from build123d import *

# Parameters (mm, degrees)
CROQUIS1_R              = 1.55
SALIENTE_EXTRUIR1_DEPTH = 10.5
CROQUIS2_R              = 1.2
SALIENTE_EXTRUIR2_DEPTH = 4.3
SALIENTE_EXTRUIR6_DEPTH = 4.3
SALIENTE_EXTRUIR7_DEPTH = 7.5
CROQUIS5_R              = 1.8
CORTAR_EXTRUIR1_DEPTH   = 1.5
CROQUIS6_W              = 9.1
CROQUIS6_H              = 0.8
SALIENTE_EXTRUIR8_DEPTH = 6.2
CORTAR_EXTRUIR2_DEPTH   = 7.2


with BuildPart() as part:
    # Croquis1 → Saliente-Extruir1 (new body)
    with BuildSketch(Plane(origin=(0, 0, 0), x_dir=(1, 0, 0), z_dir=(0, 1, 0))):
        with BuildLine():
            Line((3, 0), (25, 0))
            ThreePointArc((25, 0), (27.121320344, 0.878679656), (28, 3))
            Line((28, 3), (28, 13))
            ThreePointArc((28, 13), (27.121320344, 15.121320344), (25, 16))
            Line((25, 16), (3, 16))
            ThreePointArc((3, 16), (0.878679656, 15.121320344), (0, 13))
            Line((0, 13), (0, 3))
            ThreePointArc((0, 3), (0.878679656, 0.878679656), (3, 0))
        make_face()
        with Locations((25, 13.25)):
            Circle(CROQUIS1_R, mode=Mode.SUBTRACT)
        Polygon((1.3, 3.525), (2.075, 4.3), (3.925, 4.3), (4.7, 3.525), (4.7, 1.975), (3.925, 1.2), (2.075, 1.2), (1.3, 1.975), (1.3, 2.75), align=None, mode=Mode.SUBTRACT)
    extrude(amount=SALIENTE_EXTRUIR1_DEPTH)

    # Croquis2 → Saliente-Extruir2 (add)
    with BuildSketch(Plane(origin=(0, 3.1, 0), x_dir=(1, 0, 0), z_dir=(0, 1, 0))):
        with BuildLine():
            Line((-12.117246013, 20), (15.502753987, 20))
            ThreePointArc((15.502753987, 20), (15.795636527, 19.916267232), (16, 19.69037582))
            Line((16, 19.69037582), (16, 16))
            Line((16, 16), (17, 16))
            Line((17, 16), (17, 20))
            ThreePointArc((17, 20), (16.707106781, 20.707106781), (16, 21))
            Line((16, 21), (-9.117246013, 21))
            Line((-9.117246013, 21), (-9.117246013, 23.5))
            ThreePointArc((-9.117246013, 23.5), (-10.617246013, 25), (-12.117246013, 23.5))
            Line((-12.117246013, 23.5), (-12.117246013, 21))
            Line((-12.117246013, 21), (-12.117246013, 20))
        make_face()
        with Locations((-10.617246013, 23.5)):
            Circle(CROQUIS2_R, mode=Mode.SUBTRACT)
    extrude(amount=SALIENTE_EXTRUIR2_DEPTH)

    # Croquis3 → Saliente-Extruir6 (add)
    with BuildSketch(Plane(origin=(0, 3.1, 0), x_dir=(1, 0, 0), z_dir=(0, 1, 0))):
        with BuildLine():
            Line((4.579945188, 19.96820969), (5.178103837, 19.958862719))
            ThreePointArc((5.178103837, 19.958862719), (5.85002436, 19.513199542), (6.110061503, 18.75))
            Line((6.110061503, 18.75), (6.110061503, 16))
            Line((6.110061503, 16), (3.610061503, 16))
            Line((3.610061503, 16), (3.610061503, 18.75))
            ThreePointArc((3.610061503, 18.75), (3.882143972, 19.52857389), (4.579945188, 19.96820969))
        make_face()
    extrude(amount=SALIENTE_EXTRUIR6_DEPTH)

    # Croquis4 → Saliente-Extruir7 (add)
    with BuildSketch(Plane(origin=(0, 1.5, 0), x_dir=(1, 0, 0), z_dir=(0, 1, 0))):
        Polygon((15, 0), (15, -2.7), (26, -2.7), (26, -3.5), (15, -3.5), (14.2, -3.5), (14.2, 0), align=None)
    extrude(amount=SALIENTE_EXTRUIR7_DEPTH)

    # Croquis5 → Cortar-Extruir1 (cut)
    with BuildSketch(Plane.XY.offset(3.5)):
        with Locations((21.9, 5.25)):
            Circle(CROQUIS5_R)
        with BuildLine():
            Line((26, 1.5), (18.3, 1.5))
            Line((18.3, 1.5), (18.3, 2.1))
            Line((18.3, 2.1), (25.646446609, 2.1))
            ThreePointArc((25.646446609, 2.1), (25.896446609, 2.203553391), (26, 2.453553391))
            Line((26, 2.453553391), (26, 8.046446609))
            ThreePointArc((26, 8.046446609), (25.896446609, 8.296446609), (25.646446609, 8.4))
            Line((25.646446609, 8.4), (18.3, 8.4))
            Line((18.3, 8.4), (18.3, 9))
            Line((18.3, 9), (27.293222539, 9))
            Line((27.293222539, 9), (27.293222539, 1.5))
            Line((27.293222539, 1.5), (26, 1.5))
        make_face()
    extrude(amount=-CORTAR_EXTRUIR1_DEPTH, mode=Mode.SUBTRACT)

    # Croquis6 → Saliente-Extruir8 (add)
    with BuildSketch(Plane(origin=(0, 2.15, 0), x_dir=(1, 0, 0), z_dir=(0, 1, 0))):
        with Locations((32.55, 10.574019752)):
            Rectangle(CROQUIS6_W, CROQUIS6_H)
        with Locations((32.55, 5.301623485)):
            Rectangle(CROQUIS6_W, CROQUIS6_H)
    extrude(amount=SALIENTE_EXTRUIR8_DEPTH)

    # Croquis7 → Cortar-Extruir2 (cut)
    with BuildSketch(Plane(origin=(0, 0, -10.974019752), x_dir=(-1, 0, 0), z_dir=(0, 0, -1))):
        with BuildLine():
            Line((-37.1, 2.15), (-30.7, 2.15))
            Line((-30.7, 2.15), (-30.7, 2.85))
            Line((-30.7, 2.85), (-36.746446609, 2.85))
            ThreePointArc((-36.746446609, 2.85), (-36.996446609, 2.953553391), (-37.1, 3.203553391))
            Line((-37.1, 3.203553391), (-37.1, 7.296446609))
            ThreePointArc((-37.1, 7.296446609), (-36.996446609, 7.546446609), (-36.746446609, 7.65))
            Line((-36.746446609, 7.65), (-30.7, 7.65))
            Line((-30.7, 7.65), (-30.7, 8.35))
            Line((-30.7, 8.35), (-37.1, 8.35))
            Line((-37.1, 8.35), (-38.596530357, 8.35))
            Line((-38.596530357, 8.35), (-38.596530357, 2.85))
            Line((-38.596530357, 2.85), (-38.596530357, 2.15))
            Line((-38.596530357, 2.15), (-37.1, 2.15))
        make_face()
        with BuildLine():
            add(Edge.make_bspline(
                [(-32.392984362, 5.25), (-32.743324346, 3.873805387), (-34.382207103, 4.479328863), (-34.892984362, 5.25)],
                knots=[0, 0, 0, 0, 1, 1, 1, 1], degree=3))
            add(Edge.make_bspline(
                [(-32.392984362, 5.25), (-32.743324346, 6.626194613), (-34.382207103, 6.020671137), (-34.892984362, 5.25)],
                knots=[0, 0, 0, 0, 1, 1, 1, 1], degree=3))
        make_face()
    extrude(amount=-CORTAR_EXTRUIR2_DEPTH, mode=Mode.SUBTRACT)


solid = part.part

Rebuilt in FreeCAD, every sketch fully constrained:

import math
import FreeCAD as App
import Part
import Sketcher

V = App.Vector
Q = App.Units.Quantity


def add_polygon(sketch, points):
    """Adds a closed chain of lines whose ends are joined by coincident constraints."""
    first, n = sketch.GeometryCount, len(points)
    for a, b in zip(points, points[1:] + points[:1]):
        sketch.addGeometry(Part.LineSegment(App.Vector(*a, 0), App.Vector(*b, 0)), False)
    for i in range(n):
        sketch.addConstraint(Sketcher.Constraint("Coincident", first + i, 2, first + (i + 1) % n, 1))

doc = App.newDocument("Part")
body = doc.addObject("PartDesign::Body", "Body")

# Sketch on XZ plane
sketch1 = body.newObject("Sketcher::SketchObject", "Sketch")
sketch1.AttachmentSupport = (doc.getObject("XZ_Plane"), [""])
sketch1.MapMode = "FlatFace"
sketch1.addGeometry(Part.LineSegment(V(3, 0, 0), V(25, 0, 0)), False)  # 0
sketch1.addGeometry(Part.ArcOfCircle(Part.Circle(V(25, -3, 0), V(0, 0, 1), 3), math.radians(0), math.radians(90)), False)  # 1
sketch1.addGeometry(Part.LineSegment(V(28, -3, 0), V(28, -13, 0)), False)  # 2
sketch1.addGeometry(Part.ArcOfCircle(Part.Circle(V(25, -13, 0), V(0, 0, 1), 3), math.radians(-90), math.radians(0)), False)  # 3
sketch1.addGeometry(Part.LineSegment(V(25, -16, 0), V(3, -16, 0)), False)  # 4
sketch1.addGeometry(Part.ArcOfCircle(Part.Circle(V(3, -13, 0), V(0, 0, 1), 3), math.radians(180), math.radians(270)), False)  # 5
sketch1.addGeometry(Part.LineSegment(V(0, -13, 0), V(0, -3, 0)), False)  # 6
sketch1.addGeometry(Part.ArcOfCircle(Part.Circle(V(3, -3, 0), V(0, 0, 1), 3), math.radians(90), math.radians(180)), False)  # 7
add_polygon(sketch1, [(1.3, -1.975), (1.3, -3.525), (2.075, -4.3), (3.925, -4.3), (4.7, -3.525), (4.7, -1.975), (3.925, -1.2), (2.075, -1.2)])  # lines 8-15
sketch1.addGeometry(Part.Circle(V(25, -13.25, 0), V(0, 0, 1), 1.55), False)  # 16
sketch1.addConstraint([
    Sketcher.Constraint("Tangent", 0, 2, 1, 2),
    Sketcher.Constraint("Tangent", 1, 1, 2, 1),
    Sketcher.Constraint("Tangent", 2, 2, 3, 2),
    Sketcher.Constraint("Tangent", 3, 1, 4, 1),
    Sketcher.Constraint("Tangent", 4, 2, 5, 2),
    Sketcher.Constraint("Tangent", 5, 1, 6, 1),
    Sketcher.Constraint("Tangent", 6, 2, 7, 2),
    Sketcher.Constraint("Tangent", 7, 1, 0, 1),
    Sketcher.Constraint("Horizontal", 0),
    Sketcher.Constraint("Vertical", 2),
    Sketcher.Constraint("Horizontal", 4),
    Sketcher.Constraint("Vertical", 6),
    Sketcher.Constraint("Vertical", 8),
    Sketcher.Constraint("Horizontal", 10),
    Sketcher.Constraint("Vertical", 12),
    Sketcher.Constraint("Horizontal", 14),
    Sketcher.Constraint("Equal", 1, 3),
    Sketcher.Constraint("Equal", 3, 5),
    Sketcher.Constraint("Equal", 5, 7),
    Sketcher.Constraint("PointOnObject", 0, 2, -1),
    Sketcher.Constraint("PointOnObject", 5, 1, -2),
    Sketcher.Constraint("Perpendicular", 9, 11),
    Sketcher.Constraint("Perpendicular", 11, 13),
    Sketcher.Constraint("Perpendicular", 13, 15),
    Sketcher.Constraint("Horizontal", 8, 2, 11, 2),
    Sketcher.Constraint("Horizontal", 12, 2, 15, 2),
    Sketcher.Constraint("Vertical", 3, 3, 16, 3),
    Sketcher.Constraint("Vertical", 10, 2, 13, 2),
    Sketcher.Constraint("Vertical", 9, 2, 14, 2),
    Sketcher.Constraint("Radius", 1, Q("3 mm")),
    Sketcher.Constraint("Diameter", 16, Q("3.1 mm")),
    Sketcher.Constraint("DistanceX", 0, 1, 0, 2, Q("22 mm")),
    Sketcher.Constraint("DistanceY", 2, 2, 2, 1, Q("10 mm")),
    Sketcher.Constraint("DistanceX", 10, 1, 10, 2, Q("1.85 mm")),
    Sketcher.Constraint("DistanceY", 8, 2, 8, 1, Q("1.55 mm")),
    Sketcher.Constraint("DistanceX", -1, 1, 8, 2, Q("1.3 mm")),
    Sketcher.Constraint("DistanceY", 9, 2, -1, 1, Q("4.3 mm")),
    Sketcher.Constraint("DistanceX", -1, 1, 11, 2, Q("4.7 mm")),
    Sketcher.Constraint("DistanceY", 16, 3, -1, 1, Q("13.25 mm")),
])
pad1 = body.newObject("PartDesign::Pad", "Pad")
pad1.Profile = sketch1
pad1.Length = 10.5
pad1.Reversed = True

# Sketch on XZ plane
sketch2 = body.newObject("Sketcher::SketchObject", "Sketch001")
sketch2.AttachmentSupport = (doc.getObject("XZ_Plane"), [""])
sketch2.MapMode = "FlatFace"
sketch2.AttachmentOffset = App.Placement(V(0, 0, -3.1), App.Rotation())
sketch2.addGeometry([
    Part.LineSegment(V(-12.117246, -20, 0), V(15.502754, -20, 0)),  # 0
    Part.ArcOfCircle(Part.Circle(V(15.502754, -19.445908, 0), V(0, 0, 1), 0.554092), math.radians(-90), math.radians(-26.180769)),  # 1
    Part.LineSegment(V(16, -19.690376, 0), V(16, -16, 0)),  # 2
    Part.LineSegment(V(16, -16, 0), V(17, -16, 0)),  # 3
    Part.LineSegment(V(17, -16, 0), V(17, -20, 0)),  # 4
    Part.ArcOfCircle(Part.Circle(V(16, -20, 0), V(0, 0, 1), 1), math.radians(-90), math.radians(0)),  # 5
    Part.LineSegment(V(16, -21, 0), V(-9.117246, -21, 0)),  # 6
    Part.LineSegment(V(-9.117246, -21, 0), V(-9.117246, -23.5, 0)),  # 7
    Part.ArcOfCircle(Part.Circle(V(-10.617246, -23.5, 0), V(0, 0, 1), 1.5), math.radians(180), math.radians(360)),  # 8
    Part.LineSegment(V(-12.117246, -23.5, 0), V(-12.117246, -20, 0)),  # 9
    Part.Circle(V(-10.617246, -23.5, 0), V(0, 0, 1), 1.2),  # 10
], False)
sketch2.addConstraint([
    Sketcher.Constraint("Tangent", 0, 2, 1, 1),
    Sketcher.Constraint("Coincident", 1, 2, 2, 1),
    Sketcher.Constraint("Coincident", 2, 2, 3, 1),
    Sketcher.Constraint("Coincident", 3, 2, 4, 1),
    Sketcher.Constraint("Tangent", 4, 2, 5, 2),
    Sketcher.Constraint("Tangent", 5, 1, 6, 1),
    Sketcher.Constraint("Coincident", 6, 2, 7, 1),
    Sketcher.Constraint("Tangent", 7, 2, 8, 2),
    Sketcher.Constraint("Tangent", 8, 1, 9, 1),
    Sketcher.Constraint("Coincident", 9, 2, 0, 1),
    Sketcher.Constraint("Horizontal", 0),
    Sketcher.Constraint("Vertical", 2),
    Sketcher.Constraint("Horizontal", 3),
    Sketcher.Constraint("Vertical", 4),
    Sketcher.Constraint("Horizontal", 6),
    Sketcher.Constraint("Vertical", 7),
    Sketcher.Constraint("Vertical", 9),
    Sketcher.Constraint("Coincident", 10, 3, 8, 3),
    Sketcher.Constraint("Horizontal", 5, 3, 0, 2),
    Sketcher.Constraint("Vertical", 5, 3, 1, 2),
    Sketcher.Constraint("Radius", 5, Q("1 mm")),
    Sketcher.Constraint("Diameter", 10, Q("2.4 mm")),
    Sketcher.Constraint("Radius", 8, Q("1.5 mm")),
    Sketcher.Constraint("DistanceY", 4, 2, 4, 1, Q("4 mm")),
    Sketcher.Constraint("DistanceY", 7, 2, 7, 1, Q("2.5 mm")),
    Sketcher.Constraint("DistanceX", -1, 1, 5, 3, Q("16 mm")),
    Sketcher.Constraint("DistanceY", 5, 3, -1, 1, Q("20 mm")),
    Sketcher.Constraint("DistanceX", 0, 1, 0, 2, Q("27.62 mm")),
    Sketcher.Constraint("Radius", 1, Q("0.554092 mm")),
    Sketcher.Constraint("DistanceX", 6, 2, 6, 1, Q("25.117246 mm")),
])
pad2 = body.newObject("PartDesign::Pad", "Pad001")
pad2.Profile = sketch2
pad2.Length = 4.3
pad2.Reversed = True

# Sketch on XZ plane
sketch3 = body.newObject("Sketcher::SketchObject", "Sketch002")
sketch3.AttachmentSupport = (doc.getObject("XZ_Plane"), [""])
sketch3.MapMode = "FlatFace"
sketch3.AttachmentOffset = App.Placement(V(0, 0, -3.1), App.Rotation())
sketch3.addGeometry([
    Part.LineSegment(V(5.178104, -19.958863, 0), V(4.579945, -19.96821, 0)),  # 0
    Part.ArcOfCircle(Part.Circle(V(4.860062, -18.75, 0), V(0, 0, 1), 1.25), math.radians(180), math.radians(257.050448)),  # 1
    Part.LineSegment(V(3.610062, -18.75, 0), V(3.610062, -16, 0)),  # 2
    Part.LineSegment(V(3.610062, -16, 0), V(6.110062, -16, 0)),  # 3
    Part.LineSegment(V(6.110062, -16, 0), V(6.110062, -18.75, 0)),  # 4
    Part.ArcOfCircle(Part.Circle(V(4.860062, -18.75, 0), V(0, 0, 1), 1.25), math.radians(-75.259958), math.radians(0)),  # 5
], False)
sketch3.addConstraint([
    Sketcher.Constraint("Coincident", 0, 2, 1, 2),
    Sketcher.Constraint("Tangent", 1, 1, 2, 1),
    Sketcher.Constraint("Coincident", 2, 2, 3, 1),
    Sketcher.Constraint("Coincident", 3, 2, 4, 1),
    Sketcher.Constraint("Tangent", 4, 2, 5, 2),
    Sketcher.Constraint("Coincident", 5, 1, 0, 1),
    Sketcher.Constraint("Vertical", 2),
    Sketcher.Constraint("Horizontal", 3),
    Sketcher.Constraint("Vertical", 4),
    Sketcher.Constraint("Coincident", 5, 3, 1, 3),
    Sketcher.Constraint("Equal", 1, 5),
    Sketcher.Constraint("Radius", 1, Q("1.25 mm")),
    Sketcher.Constraint("DistanceY", 2, 2, -1, 1, Q("16 mm")),
    Sketcher.Constraint("DistanceY", 2, 1, 2, 2, Q("2.75 mm")),
    Sketcher.Constraint("Distance", 0, Q("0.598232 mm")),
    Sketcher.Constraint("DistanceX", -1, 1, 1, 3, Q("4.860062 mm")),
    Sketcher.Constraint("DistanceY", 0, 2, -1, 1, Q("19.96821 mm")),
])
pad3 = body.newObject("PartDesign::Pad", "Pad002")
pad3.Profile = sketch3
pad3.Length = 4.3
pad3.Reversed = True

# Sketch on XZ plane
sketch4 = body.newObject("Sketcher::SketchObject", "Sketch003")
sketch4.AttachmentSupport = (doc.getObject("XZ_Plane"), [""])
sketch4.MapMode = "FlatFace"
sketch4.AttachmentOffset = App.Placement(V(0, 0, -1.5), App.Rotation())
add_polygon(sketch4, [(15, 2.7), (15, 0), (14.2, 0), (14.2, 3.5), (26, 3.5), (26, 2.7)])  # lines 0-5
sketch4.addConstraint([
    Sketcher.Constraint("Vertical", 0),
    Sketcher.Constraint("Horizontal", 1),
    Sketcher.Constraint("Vertical", 2),
    Sketcher.Constraint("Horizontal", 3),
    Sketcher.Constraint("Vertical", 4),
    Sketcher.Constraint("Horizontal", 5),
    Sketcher.Constraint("PointOnObject", 0, 2, -1),
    Sketcher.Constraint("Equal", 1, 4),
    Sketcher.Constraint("DistanceX", 5, 2, 5, 1, Q("11 mm")),
    Sketcher.Constraint("DistanceX", 1, 2, 1, 1, Q("0.8 mm")),
    Sketcher.Constraint("DistanceY", 0, 2, 0, 1, Q("2.7 mm")),
    Sketcher.Constraint("DistanceX", -1, 1, 0, 2, Q("15 mm")),
])
pad4 = body.newObject("PartDesign::Pad", "Pad003")
pad4.Profile = sketch4
pad4.Length = 7.5
pad4.Reversed = True

# Sketch on XY plane
sketch5 = body.newObject("Sketcher::SketchObject", "Sketch004")
sketch5.AttachmentSupport = (doc.getObject("XY_Plane"), [""])
sketch5.MapMode = "FlatFace"
sketch5.AttachmentOffset = App.Placement(V(0, 0, 3.5), App.Rotation())
sketch5.addGeometry([
    Part.Circle(V(21.9, 5.25, 0), V(0, 0, 1), 1.8),  # 0
    Part.LineSegment(V(18.3, 2.1, 0), V(18.3, 1.5, 0)),  # 1
    Part.LineSegment(V(18.3, 1.5, 0), V(27.293223, 1.5, 0)),  # 2
    Part.LineSegment(V(27.293223, 1.5, 0), V(27.293223, 9, 0)),  # 3
    Part.LineSegment(V(27.293223, 9, 0), V(18.3, 9, 0)),  # 4
    Part.LineSegment(V(18.3, 9, 0), V(18.3, 8.4, 0)),  # 5
    Part.LineSegment(V(18.3, 8.4, 0), V(25.646447, 8.4, 0)),  # 6
    Part.ArcOfCircle(Part.Circle(V(25.646447, 8.046447, 0), V(0, 0, 1), 0.353553), math.radians(0), math.radians(90)),  # 7
    Part.LineSegment(V(26, 8.046447, 0), V(26, 2.453553, 0)),  # 8
    Part.ArcOfCircle(Part.Circle(V(25.646447, 2.453553, 0), V(0, 0, 1), 0.353553), math.radians(-90), math.radians(0)),  # 9
    Part.LineSegment(V(25.646447, 2.1, 0), V(18.3, 2.1, 0)),  # 10
], False)
sketch5.addConstraint([
    Sketcher.Constraint("Coincident", 1, 2, 2, 1),
    Sketcher.Constraint("Coincident", 2, 2, 3, 1),
    Sketcher.Constraint("Coincident", 3, 2, 4, 1),
    Sketcher.Constraint("Coincident", 4, 2, 5, 1),
    Sketcher.Constraint("Coincident", 5, 2, 6, 1),
    Sketcher.Constraint("Tangent", 6, 2, 7, 2),
    Sketcher.Constraint("Tangent", 7, 1, 8, 1),
    Sketcher.Constraint("Tangent", 8, 2, 9, 2),
    Sketcher.Constraint("Tangent", 9, 1, 10, 1),
    Sketcher.Constraint("Coincident", 10, 2, 1, 1),
    Sketcher.Constraint("Vertical", 1),
    Sketcher.Constraint("Horizontal", 2),
    Sketcher.Constraint("Vertical", 3),
    Sketcher.Constraint("Horizontal", 4),
    Sketcher.Constraint("Vertical", 5),
    Sketcher.Constraint("Horizontal", 6),
    Sketcher.Constraint("Vertical", 8),
    Sketcher.Constraint("Horizontal", 10),
    Sketcher.Constraint("Equal", 7, 9),
    Sketcher.Constraint("Vertical", 1, 2, 4, 2),
    Sketcher.Constraint("Equal", 1, 5),
    Sketcher.Constraint("Diameter", 0, Q("3.6 mm")),
    Sketcher.Constraint("DistanceY", 1, 2, 1, 1, Q("0.6 mm")),
    Sketcher.Constraint("DistanceY", 3, 1, 3, 2, Q("7.5 mm")),
    Sketcher.Constraint("DistanceY", -1, 1, 3, 2, Q("9 mm")),
    Sketcher.Constraint("DistanceX", -1, 1, 7, 1, Q("26 mm")),
    Sketcher.Constraint("DistanceX", -1, 1, 0, 3, Q("21.9 mm")),
    Sketcher.Constraint("DistanceX", -1, 1, 1, 2, Q("18.3 mm")),
    Sketcher.Constraint("DistanceY", -1, 1, 0, 3, Q("5.25 mm")),
    Sketcher.Constraint("Radius", 7, Q("0.353553 mm")),
    Sketcher.Constraint("DistanceX", 2, 1, 2, 2, Q("8.993223 mm")),
])
pocket1 = body.newObject("PartDesign::Pocket", "Pocket")
pocket1.Profile = sketch5
pocket1.Length = 1.5

# Sketch on XZ plane
sketch6 = body.newObject("Sketcher::SketchObject", "Sketch005")
sketch6.AttachmentSupport = (doc.getObject("XZ_Plane"), [""])
sketch6.MapMode = "FlatFace"
sketch6.AttachmentOffset = App.Placement(V(0, 0, -2.15), App.Rotation())
add_polygon(sketch6, [(28, -10.97402), (28, -10.17402), (37.1, -10.17402), (37.1, -10.97402)])  # lines 0-3
add_polygon(sketch6, [(28, -5.701623), (28, -4.901623), (37.1, -4.901623), (37.1, -5.701623)])  # lines 4-7
sketch6.addConstraint([
    Sketcher.Constraint("Vertical", 0),
    Sketcher.Constraint("Horizontal", 1),
    Sketcher.Constraint("Vertical", 2),
    Sketcher.Constraint("Horizontal", 3),
    Sketcher.Constraint("Vertical", 4),
    Sketcher.Constraint("Horizontal", 5),
    Sketcher.Constraint("Vertical", 6),
    Sketcher.Constraint("Horizontal", 7),
    Sketcher.Constraint("Vertical", 3, 2, 4, 2),
    Sketcher.Constraint("Vertical", 2, 2, 5, 2),
    Sketcher.Constraint("Equal", 2, 4),
    Sketcher.Constraint("DistanceX", 1, 1, 1, 2, Q("9.1 mm")),
    Sketcher.Constraint("DistanceY", 0, 1, 0, 2, Q("0.8 mm")),
    Sketcher.Constraint("DistanceX", -1, 1, 0, 2, Q("28 mm")),
    Sketcher.Constraint("DistanceY", 0, 2, -1, 1, Q("10.17402 mm")),
    Sketcher.Constraint("DistanceY", 4, 2, -1, 1, Q("4.901623 mm")),
])
pad5 = body.newObject("PartDesign::Pad", "Pad004")
pad5.Profile = sketch6
pad5.Length = 6.2
pad5.Reversed = True

# Sketch on XY plane
sketch7 = body.newObject("Sketcher::SketchObject", "Sketch006")
sketch7.AttachmentSupport = (doc.getObject("XY_Plane"), [""])
sketch7.MapMode = "FlatFace"
sketch7.AttachmentOffset = App.Placement(V(0, 0, -10.97402), App.Rotation())
sketch7.addGeometry([
    Part.LineSegment(V(30.7, 2.15, 0), V(30.7, 2.85, 0)),  # 0
    Part.LineSegment(V(30.7, 2.85, 0), V(36.746447, 2.85, 0)),  # 1
    Part.ArcOfCircle(Part.Circle(V(36.746447, 3.203553, 0), V(0, 0, 1), 0.353553), math.radians(-90), math.radians(0)),  # 2
    Part.LineSegment(V(37.1, 3.203553, 0), V(37.1, 7.296447, 0)),  # 3
    Part.ArcOfCircle(Part.Circle(V(36.746447, 7.296447, 0), V(0, 0, 1), 0.353553), math.radians(0), math.radians(90)),  # 4
    Part.LineSegment(V(36.746447, 7.65, 0), V(30.7, 7.65, 0)),  # 5
    Part.LineSegment(V(30.7, 7.65, 0), V(30.7, 8.35, 0)),  # 6
    Part.LineSegment(V(30.7, 8.35, 0), V(38.59653, 8.35, 0)),  # 7
    Part.LineSegment(V(38.59653, 8.35, 0), V(38.59653, 2.15, 0)),  # 8
    Part.LineSegment(V(38.59653, 2.15, 0), V(30.7, 2.15, 0)),  # 9
    Part.BSplineCurve([V(32.392984, 5.25, 0), V(32.743324, 3.873805, 0), V(34.382207, 4.479329, 0), V(34.892984, 5.25, 0)], [4, 4], [0, 1], False, 3, [1, 1, 1, 1], False),  # 10
    Part.BSplineCurve([V(32.392984, 5.25, 0), V(32.743324, 6.626195, 0), V(34.382207, 6.020671, 0), V(34.892984, 5.25, 0)], [4, 4], [0, 1], False, 3, [1, 1, 1, 1], False),  # 11
], False)
sketch7.addConstraint([
    Sketcher.Constraint("Block", 10),
    Sketcher.Constraint("Block", 11),
    Sketcher.Constraint("Coincident", 0, 2, 1, 1),
    Sketcher.Constraint("Tangent", 1, 2, 2, 1),
    Sketcher.Constraint("Tangent", 2, 2, 3, 1),
    Sketcher.Constraint("Tangent", 3, 2, 4, 1),
    Sketcher.Constraint("Tangent", 4, 2, 5, 1),
    Sketcher.Constraint("Coincident", 5, 2, 6, 1),
    Sketcher.Constraint("Coincident", 6, 2, 7, 1),
    Sketcher.Constraint("Coincident", 7, 2, 8, 1),
    Sketcher.Constraint("Coincident", 8, 2, 9, 1),
    Sketcher.Constraint("Coincident", 9, 2, 0, 1),
    Sketcher.Constraint("Vertical", 0),
    Sketcher.Constraint("Horizontal", 1),
    Sketcher.Constraint("Vertical", 3),
    Sketcher.Constraint("Horizontal", 5),
    Sketcher.Constraint("Vertical", 6),
    Sketcher.Constraint("Horizontal", 7),
    Sketcher.Constraint("Vertical", 8),
    Sketcher.Constraint("Horizontal", 9),
    Sketcher.Constraint("Equal", 2, 4),
    Sketcher.Constraint("Vertical", 0, 2, 5, 2),
    Sketcher.Constraint("Equal", 0, 6),
    Sketcher.Constraint("DistanceY", 0, 1, 0, 2, Q("0.7 mm")),
    Sketcher.Constraint("DistanceY", 8, 2, 8, 1, Q("6.2 mm")),
    Sketcher.Constraint("DistanceX", -1, 1, 0, 2, Q("30.7 mm")),
    Sketcher.Constraint("DistanceX", -1, 1, 2, 2, Q("37.1 mm")),
    Sketcher.Constraint("DistanceY", -1, 1, 0, 2, Q("2.85 mm")),
    Sketcher.Constraint("Radius", 2, Q("0.353553 mm")),
    Sketcher.Constraint("DistanceX", 7, 1, 7, 2, Q("7.89653 mm")),
])
pocket2 = body.newObject("PartDesign::Pocket", "Pocket001")
pocket2.Profile = sketch7
pocket2.Length = 7.2
pocket2.Reversed = True

doc.recompute()
